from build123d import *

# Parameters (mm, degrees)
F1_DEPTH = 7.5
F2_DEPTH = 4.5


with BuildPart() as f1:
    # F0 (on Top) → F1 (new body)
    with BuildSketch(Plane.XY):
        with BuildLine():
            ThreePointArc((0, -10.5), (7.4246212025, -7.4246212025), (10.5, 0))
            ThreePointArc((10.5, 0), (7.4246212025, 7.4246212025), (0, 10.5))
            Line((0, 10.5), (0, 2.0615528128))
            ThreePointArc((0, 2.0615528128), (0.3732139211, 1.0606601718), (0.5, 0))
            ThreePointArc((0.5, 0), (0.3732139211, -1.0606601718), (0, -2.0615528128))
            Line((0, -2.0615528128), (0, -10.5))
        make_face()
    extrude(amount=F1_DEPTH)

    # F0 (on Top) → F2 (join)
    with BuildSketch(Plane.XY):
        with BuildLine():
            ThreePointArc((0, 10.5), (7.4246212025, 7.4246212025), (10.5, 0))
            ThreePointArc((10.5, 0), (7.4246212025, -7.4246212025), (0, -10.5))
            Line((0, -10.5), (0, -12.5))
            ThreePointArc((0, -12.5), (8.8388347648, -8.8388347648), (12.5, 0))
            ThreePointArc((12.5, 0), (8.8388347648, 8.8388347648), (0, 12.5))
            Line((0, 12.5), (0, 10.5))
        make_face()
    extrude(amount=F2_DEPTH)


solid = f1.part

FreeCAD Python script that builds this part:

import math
import FreeCAD as App
import Part
import Sketcher
from FreeCAD import Vector

doc = App.newDocument("Part")
body = doc.addObject("PartDesign::Body", "Body")

# Sketch on XY plane
sketch1 = body.newObject("Sketcher::SketchObject", "Sketch")
sketch1.AttachmentSupport = (doc.getObject("XY_Plane"), [""])
sketch1.MapMode = "FlatFace"
sketch1.addGeometry([
    Part.ArcOfCircle(Part.Circle(Vector(0, 0, 0), Vector(0, 0, 1), 10.5), math.radians(-90), math.radians(0)),  # 0
    Part.ArcOfCircle(Part.Circle(Vector(0, 0, 0), Vector(0, 0, 1), 10.5), math.radians(0), math.radians(90)),  # 1
    Part.LineSegment(Vector(0, 10.5, 0), Vector(0, 2.061553, 0)),  # 2
    Part.ArcOfCircle(Part.Circle(Vector(-4, 0, 0), Vector(0, 0, 1), 4.5), math.radians(0), math.radians(27.266044)),  # 3
    Part.ArcOfCircle(Part.Circle(Vector(-4, 0, 0), Vector(0, 0, 1), 4.5), math.radians(-27.266044), math.radians(0)),  # 4
    Part.LineSegment(Vector(0, -2.061553, 0), Vector(0, -10.5, 0)),  # 5
], False)
sketch1.addConstraint([
    Sketcher.Constraint("Tangent", 0, 2, 1, 1),
    Sketcher.Constraint("Coincident", 1, 2, 2, 1),
    Sketcher.Constraint("Coincident", 2, 2, 3, 2),
    Sketcher.Constraint("Tangent", 3, 1, 4, 2),
    Sketcher.Constraint("Coincident", 4, 1, 5, 1),
    Sketcher.Constraint("Coincident", 5, 2, 0, 1),
    Sketcher.Constraint("Vertical", 2),
    Sketcher.Constraint("Vertical", 5),
    Sketcher.Constraint("Coincident", 0, 3, -1, 1),
    Sketcher.Constraint("Equal", 0, 1),
    Sketcher.Constraint("Equal", 3, 4),
    Sketcher.Constraint("Symmetric", 2, 2, 4, 1, -1, 1),
    Sketcher.Constraint("PointOnObject", 3, 3, -1),
    Sketcher.Constraint("PointOnObject", 0, 2, -1),
    Sketcher.Constraint("PointOnObject", 3, 1, -1),
    Sketcher.Constraint("Radius", 0, 10.5),
    Sketcher.Constraint("Radius", 3, 4.5),
    Sketcher.Constraint("DistanceX", 3, 3, -1, 1, 4.0),
])
pad1 = body.newObject("PartDesign::Pad", "Pad")
pad1.Profile = sketch1
pad1.Length = 7.5

# Sketch on XY plane
sketch2 = body.newObject("Sketcher::SketchObject", "Sketch001")
sketch2.AttachmentSupport = (doc.getObject("XY_Plane"), [""])
sketch2.MapMode = "FlatFace"
sketch2.addGeometry([
    Part.ArcOfCircle(Part.Circle(Vector(0, 0, 0), Vector(0, 0, 1), 10.5), math.radians(0), math.radians(90)),  # 0
    Part.ArcOfCircle(Part.Circle(Vector(0, 0, 0), Vector(0, 0, 1), 10.5), math.radians(-90), math.radians(0)),  # 1
    Part.LineSegment(Vector(0, -10.5, 0), Vector(0, -12.5, 0)),  # 2
    Part.ArcOfCircle(Part.Circle(Vector(0, 0, 0), Vector(0, 0, 1), 12.5), math.radians(-90), math.radians(0)),  # 3
    Part.ArcOfCircle(Part.Circle(Vector(0, 0, 0), Vector(0, 0, 1), 12.5), math.radians(0), math.radians(90)),  # 4
    Part.LineSegment(Vector(0, 12.5, 0), Vector(0, 10.5, 0)),  # 5
], False)
sketch2.addConstraint([
    Sketcher.Constraint("Tangent", 0, 1, 1, 2),
    Sketcher.Constraint("Coincident", 1, 1, 2, 1),
    Sketcher.Constraint("Coincident", 2, 2, 3, 1),
    Sketcher.Constraint("Tangent", 3, 2, 4, 1),
    Sketcher.Constraint("Coincident", 4, 2, 5, 1),
    Sketcher.Constraint("Coincident", 5, 2, 0, 2),
    Sketcher.Constraint("Vertical", 2),
    Sketcher.Constraint("Vertical", 5),
    Sketcher.Constraint("Coincident", 0, 3, -1, 1),
    Sketcher.Constraint("Coincident", 3, 3, -1, 1),
    Sketcher.Constraint("Equal", 0, 1),
    Sketcher.Constraint("Equal", 3, 4),
    Sketcher.Constraint("PointOnObject", 0, 1, -1),
    Sketcher.Constraint("PointOnObject", 1, 1, -2),
    Sketcher.Constraint("PointOnObject", 3, 2, -1),
    Sketcher.Constraint("PointOnObject", 4, 2, -2),
    Sketcher.Constraint("Radius", 0, 10.5),
    Sketcher.Constraint("Radius", 3, 12.5),
])
pad2 = body.newObject("PartDesign::Pad", "Pad001")
pad2.Profile = sketch2
pad2.Length = 4.5

doc.recompute()
